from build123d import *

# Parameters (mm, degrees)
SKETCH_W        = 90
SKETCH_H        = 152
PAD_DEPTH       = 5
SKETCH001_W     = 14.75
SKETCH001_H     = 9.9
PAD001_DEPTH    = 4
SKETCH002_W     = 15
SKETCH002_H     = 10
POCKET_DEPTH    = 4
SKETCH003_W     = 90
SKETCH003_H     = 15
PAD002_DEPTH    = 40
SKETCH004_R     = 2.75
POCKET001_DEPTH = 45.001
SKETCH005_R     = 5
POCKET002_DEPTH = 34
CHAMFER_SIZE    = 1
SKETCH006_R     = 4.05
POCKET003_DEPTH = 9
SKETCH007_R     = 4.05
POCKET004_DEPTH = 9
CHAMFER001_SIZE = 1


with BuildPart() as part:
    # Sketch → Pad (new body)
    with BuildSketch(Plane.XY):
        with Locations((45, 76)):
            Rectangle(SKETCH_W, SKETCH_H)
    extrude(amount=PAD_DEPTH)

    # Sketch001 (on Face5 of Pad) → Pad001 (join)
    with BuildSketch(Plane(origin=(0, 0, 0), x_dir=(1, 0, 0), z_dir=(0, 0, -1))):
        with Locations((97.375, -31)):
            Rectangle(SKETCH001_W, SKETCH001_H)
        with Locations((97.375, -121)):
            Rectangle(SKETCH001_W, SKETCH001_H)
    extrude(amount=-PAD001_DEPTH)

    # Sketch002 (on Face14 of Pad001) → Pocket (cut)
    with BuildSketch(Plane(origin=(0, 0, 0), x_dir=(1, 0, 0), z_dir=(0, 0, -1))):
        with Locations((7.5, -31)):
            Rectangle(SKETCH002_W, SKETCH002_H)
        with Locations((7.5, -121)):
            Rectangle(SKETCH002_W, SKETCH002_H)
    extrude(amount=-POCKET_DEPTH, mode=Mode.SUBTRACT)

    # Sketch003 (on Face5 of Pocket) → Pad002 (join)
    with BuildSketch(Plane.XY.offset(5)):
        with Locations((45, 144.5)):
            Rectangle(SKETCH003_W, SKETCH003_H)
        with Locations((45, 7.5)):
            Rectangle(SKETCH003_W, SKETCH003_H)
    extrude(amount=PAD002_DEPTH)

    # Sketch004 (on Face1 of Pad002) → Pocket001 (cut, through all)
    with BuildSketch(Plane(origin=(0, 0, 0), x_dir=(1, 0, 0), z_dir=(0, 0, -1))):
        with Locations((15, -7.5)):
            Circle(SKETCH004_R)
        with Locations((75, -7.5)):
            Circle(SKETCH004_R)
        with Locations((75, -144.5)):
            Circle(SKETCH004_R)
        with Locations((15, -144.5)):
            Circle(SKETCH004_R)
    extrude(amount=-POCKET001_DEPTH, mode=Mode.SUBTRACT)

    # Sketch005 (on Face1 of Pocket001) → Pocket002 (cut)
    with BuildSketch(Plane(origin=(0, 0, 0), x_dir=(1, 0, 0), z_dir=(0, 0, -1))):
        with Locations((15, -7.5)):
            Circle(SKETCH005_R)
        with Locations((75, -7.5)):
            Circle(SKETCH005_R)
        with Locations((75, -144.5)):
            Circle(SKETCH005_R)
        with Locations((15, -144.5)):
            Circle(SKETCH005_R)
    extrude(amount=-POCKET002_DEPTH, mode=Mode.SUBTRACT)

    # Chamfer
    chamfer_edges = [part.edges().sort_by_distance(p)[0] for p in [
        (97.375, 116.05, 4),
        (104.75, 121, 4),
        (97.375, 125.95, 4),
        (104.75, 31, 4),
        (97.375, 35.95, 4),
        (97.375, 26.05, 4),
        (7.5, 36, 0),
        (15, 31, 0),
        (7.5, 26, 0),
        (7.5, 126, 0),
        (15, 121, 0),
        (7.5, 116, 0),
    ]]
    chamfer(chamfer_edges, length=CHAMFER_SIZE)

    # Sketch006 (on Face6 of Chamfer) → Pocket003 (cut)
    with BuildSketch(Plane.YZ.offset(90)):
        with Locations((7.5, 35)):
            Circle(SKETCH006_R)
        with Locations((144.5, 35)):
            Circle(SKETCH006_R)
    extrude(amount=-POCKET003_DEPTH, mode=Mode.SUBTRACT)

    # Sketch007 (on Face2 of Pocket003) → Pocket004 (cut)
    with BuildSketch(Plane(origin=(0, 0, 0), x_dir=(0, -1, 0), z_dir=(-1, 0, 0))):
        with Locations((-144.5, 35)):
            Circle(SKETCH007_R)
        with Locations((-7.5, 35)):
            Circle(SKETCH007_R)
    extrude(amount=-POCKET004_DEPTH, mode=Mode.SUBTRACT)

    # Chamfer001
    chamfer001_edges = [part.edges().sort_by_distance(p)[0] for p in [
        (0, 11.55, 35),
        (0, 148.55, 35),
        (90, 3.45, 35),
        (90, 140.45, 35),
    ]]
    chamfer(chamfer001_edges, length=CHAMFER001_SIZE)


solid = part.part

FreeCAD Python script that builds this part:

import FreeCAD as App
import Part
import Sketcher


def edges_at(feature, points):
    """Names of the edges that pass closest to the given points."""
    edges = feature.Shape.Edges
    near = lambda p: min(range(len(edges)), key=lambda i: edges[i].distToShape(Part.Vertex(*p))[0])
    return sorted({f"Edge{near(p) + 1}" for p in points})

doc = App.newDocument("Part")
body = doc.addObject("PartDesign::Body", "Body")

sketch1 = doc.addObject("Sketcher::SketchObject", "Sketch")
body.addObject(sketch1)
sketch1.AttachmentSupport = (doc.XY_Plane, [""])
sketch1.MapMode = "FlatFace"
sketch1.addGeometry([
    Part.LineSegment(App.Vector(0, 152, 0), App.Vector(0, 0, 0)),
    Part.LineSegment(App.Vector(0, 0, 0), App.Vector(90, 0, 0)),
    Part.LineSegment(App.Vector(90, 0, 0), App.Vector(90, 152, 0)),
    Part.LineSegment(App.Vector(90, 152, 0), App.Vector(0, 152, 0)),
], False)
sketch1.addConstraint([
    Sketcher.Constraint("Coincident", 0, 2, 1, 1),
    Sketcher.Constraint("Coincident", 1, 2, 2, 1),
    Sketcher.Constraint("Coincident", 2, 2, 3, 1),
    Sketcher.Constraint("Coincident", 3, 2, 0, 1),
    Sketcher.Constraint("Vertical", 0),
    Sketcher.Constraint("Horizontal", 1),
    Sketcher.Constraint("Vertical", 2),
    Sketcher.Constraint("Horizontal", 3),
    Sketcher.Constraint("Coincident", 0, 2, -1, 1),
    Sketcher.Constraint("DistanceX", 1, 1, 1, 2, 90.0),
    Sketcher.Constraint("DistanceY", 0, 2, 0, 1, 152.0),
])
pad1 = doc.addObject("PartDesign::Pad", "Pad")
body.addObject(pad1)
pad1.Profile = sketch1
pad1.Length = 5

sketch2 = doc.addObject("Sketcher::SketchObject", "Sketch001")
body.addObject(sketch2)
sketch2.AttachmentSupport = (doc.XY_Plane, [""])
sketch2.MapMode = "FlatFace"
sketch2.addGeometry([
    Part.LineSegment(App.Vector(90, 26, 0), App.Vector(90, 36, 0)),
    Part.LineSegment(App.Vector(90, 36, 0), App.Vector(105, 36, 0)),
    Part.LineSegment(App.Vector(105, 36, 0), App.Vector(105, 26, 0)),
    Part.LineSegment(App.Vector(105, 26, 0), App.Vector(90, 26, 0)),
    Part.LineSegment(App.Vector(90, 116, 0), App.Vector(90, 126, 0)),
    Part.LineSegment(App.Vector(90, 126, 0), App.Vector(105, 126, 0)),
    Part.LineSegment(App.Vector(105, 126, 0), App.Vector(105, 116, 0)),
    Part.LineSegment(App.Vector(105, 116, 0), App.Vector(90, 116, 0)),
], False)
sketch2.addConstraint([
    Sketcher.Constraint("Coincident", 0, 2, 1, 1),
    Sketcher.Constraint("Coincident", 1, 2, 2, 1),
    Sketcher.Constraint("Coincident", 2, 2, 3, 1),
    Sketcher.Constraint("Coincident", 3, 2, 0, 1),
    Sketcher.Constraint("Coincident", 4, 2, 5, 1),
    Sketcher.Constraint("Coincident", 5, 2, 6, 1),
    Sketcher.Constraint("Coincident", 6, 2, 7, 1),
    Sketcher.Constraint("Coincident", 7, 2, 4, 1),
    Sketcher.Constraint("Vertical", 0),
    Sketcher.Constraint("Horizontal", 1),
    Sketcher.Constraint("Vertical", 2),
    Sketcher.Constraint("Horizontal", 3),
    Sketcher.Constraint("Vertical", 4),
    Sketcher.Constraint("Horizontal", 5),
    Sketcher.Constraint("Vertical", 6),
    Sketcher.Constraint("Horizontal", 7),
    Sketcher.Constraint("Vertical", 3, 2, 4, 2),
    Sketcher.Constraint("Vertical", 2, 2, 5, 2),
    Sketcher.Constraint("Equal", 2, 4),
    Sketcher.Constraint("DistanceY", 0, 1, 0, 2, 9.9),
    Sketcher.Constraint("DistanceX", -1, 1, 0, 2, 90.0),
    Sketcher.Constraint("DistanceY", 0, 2, 4, 2, 90.0),
    Sketcher.Constraint("DistanceX", 1, 1, 1, 2, 14.75),
    Sketcher.Constraint("DistanceY", -1, 1, 0, 2, 35.95),
])
pad2 = doc.addObject("PartDesign::Pad", "Pad001")
body.addObject(pad2)
pad2.Profile = sketch2
pad2.Length = 4

sketch3 = doc.addObject("Sketcher::SketchObject", "Sketch002")
body.addObject(sketch3)
sketch3.AttachmentSupport = (doc.XY_Plane, [""])
sketch3.MapMode = "FlatFace"
sketch3.addGeometry([
    Part.LineSegment(App.Vector(0, 26, 0), App.Vector(0, 36, 0)),
    Part.LineSegment(App.Vector(0, 36, 0), App.Vector(15, 36, 0)),
    Part.LineSegment(App.Vector(15, 36, 0), App.Vector(15, 26, 0)),
    Part.LineSegment(App.Vector(15, 26, 0), App.Vector(0, 26, 0)),
    Part.LineSegment(App.Vector(0, 116, 0), App.Vector(0, 126, 0)),
    Part.LineSegment(App.Vector(0, 126, 0), App.Vector(15, 126, 0)),
    Part.LineSegment(App.Vector(15, 126, 0), App.Vector(15, 116, 0)),
    Part.LineSegment(App.Vector(15, 116, 0), App.Vector(0, 116, 0)),
], False)
sketch3.addConstraint([
    Sketcher.Constraint("Coincident", 0, 2, 1, 1),
    Sketcher.Constraint("Coincident", 1, 2, 2, 1),
    Sketcher.Constraint("Coincident", 2, 2, 3, 1),
    Sketcher.Constraint("Coincident", 3, 2, 0, 1),
    Sketcher.Constraint("Coincident", 4, 2, 5, 1),
    Sketcher.Constraint("Coincident", 5, 2, 6, 1),
    Sketcher.Constraint("Coincident", 6, 2, 7, 1),
    Sketcher.Constraint("Coincident", 7, 2, 4, 1),
    Sketcher.Constraint("Vertical", 0),
    Sketcher.Constraint("Horizontal", 1),
    Sketcher.Constraint("Vertical", 2),
    Sketcher.Constraint("Horizontal", 3),
    Sketcher.Constraint("Vertical", 4),
    Sketcher.Constraint("Horizontal", 5),
    Sketcher.Constraint("Vertical", 6),
    Sketcher.Constraint("Horizontal", 7),
    Sketcher.Constraint("PointOnObject", 0, 2, -2),
    Sketcher.Constraint("PointOnObject", 4, 2, -2),
    Sketcher.Constraint("Vertical", 2, 2, 5, 2),
    Sketcher.Constraint("Equal", 2, 4),
    Sketcher.Constraint("DistanceX", 1, 1, 1, 2, 15.0),
    Sketcher.Constraint("DistanceY", 0, 1, 0, 2, 10.0),
    Sketcher.Constraint("DistanceY", -1, 1, 0, 2, 36.0),
    Sketcher.Constraint("DistanceY", -1, 1, 4, 2, 126.0),
])
pocket1 = doc.addObject("PartDesign::Pocket", "Pocket")
body.addObject(pocket1)
pocket1.Profile = sketch3
pocket1.Length = 4
pocket1.Reversed = True

sketch4 = doc.addObject("Sketcher::SketchObject", "Sketch003")
body.addObject(sketch4)
sketch4.AttachmentSupport = (doc.XY_Plane, [""])
sketch4.MapMode = "FlatFace"
sketch4.AttachmentOffset = App.Placement(App.Vector(0, 0, 5), App.Rotation())
sketch4.addGeometry([
    Part.LineSegment(App.Vector(0, 152, 0), App.Vector(0, 137, 0)),
    Part.LineSegment(App.Vector(0, 137, 0), App.Vector(90, 137, 0)),
    Part.LineSegment(App.Vector(90, 137, 0), App.Vector(90, 152, 0)),
    Part.LineSegment(App.Vector(90, 152, 0), App.Vector(0, 152, 0)),
    Part.LineSegment(App.Vector(0, 15, 0), App.Vector(0, 0, 0)),
    Part.LineSegment(App.Vector(0, 0, 0), App.Vector(90, 0, 0)),
    Part.LineSegment(App.Vector(90, 0, 0), App.Vector(90, 15, 0)),
    Part.LineSegment(App.Vector(90, 15, 0), App.Vector(0, 15, 0)),
], False)
sketch4.addConstraint([
    Sketcher.Constraint("Coincident", 0, 2, 1, 1),
    Sketcher.Constraint("Coincident", 1, 2, 2, 1),
    Sketcher.Constraint("Coincident", 2, 2, 3, 1),
    Sketcher.Constraint("Coincident", 3, 2, 0, 1),
    Sketcher.Constraint("Coincident", 4, 2, 5, 1),
    Sketcher.Constraint("Coincident", 5, 2, 6, 1),
    Sketcher.Constraint("Coincident", 6, 2, 7, 1),
    Sketcher.Constraint("Coincident", 7, 2, 4, 1),
    Sketcher.Constraint("Vertical", 0),
    Sketcher.Constraint("Horizontal", 1),
    Sketcher.Constraint("Vertical", 2),
    Sketcher.Constraint("Horizontal", 3),
    Sketcher.Constraint("Vertical", 4),
    Sketcher.Constraint("Horizontal", 5),
    Sketcher.Constraint("Vertical", 6),
    Sketcher.Constraint("Horizontal", 7),
    Sketcher.Constraint("Coincident", 4, 2, -1, 1),
    Sketcher.Constraint("PointOnObject", 0, 2, -2),
    Sketcher.Constraint("Vertical", 2, 2, 5, 2),
    Sketcher.Constraint("Equal", 2, 4),
    Sketcher.Constraint("DistanceX", 1, 1, 1, 2, 90.0),
    Sketcher.Constraint("DistanceY", 0, 2, 0, 1, 15.0),
    Sketcher.Constraint("DistanceY", -1, 1, 0, 2, 137.0),
])
pad3 = doc.addObject("PartDesign::Pad", "Pad002")
body.addObject(pad3)
pad3.Profile = sketch4
pad3.Length = 40

sketch5 = doc.addObject("Sketcher::SketchObject", "Sketch004")
body.addObject(sketch5)
sketch5.AttachmentSupport = (doc.XY_Plane, [""])
sketch5.MapMode = "FlatFace"
sketch5.addGeometry([
    Part.Circle(App.Vector(15, 7.5, 0), App.Vector(0, 0, 1), 2.8),
    Part.Circle(App.Vector(75, 7.5, 0), App.Vector(0, 0, 1), 2.8),
    Part.Circle(App.Vector(75, 144.5, 0), App.Vector(0, 0, 1), 2.8),
    Part.Circle(App.Vector(15, 144.5, 0), App.Vector(0, 0, 1), 2.8),
], False)
sketch5.addConstraint([
    Sketcher.Constraint("Equal", 0, 1),
    Sketcher.Constraint("Equal", 1, 2),
    Sketcher.Constraint("Equal", 2, 3),
    Sketcher.Constraint("Horizontal", 0, 3, 1, 3),
    Sketcher.Constraint("Horizontal", 2, 3, 3, 3),
    Sketcher.Constraint("Vertical", 1, 3, 2, 3),
    Sketcher.Constraint("Vertical", 0, 3, 3, 3),
    Sketcher.Constraint("Diameter", 0, 5.5),
    Sketcher.Constraint("DistanceX", -1, 1, 0, 3, 15.0),
    Sketcher.Constraint("DistanceX", -1, 1, 1, 3, 75.0),
    Sketcher.Constraint("DistanceY", 1, 3, 2, 3, 137.0),
    Sketcher.Constraint("DistanceY", -1, 1, 0, 3, 7.5),
])
pocket2 = doc.addObject("PartDesign::Pocket", "Pocket001")
body.addObject(pocket2)
pocket2.Profile = sketch5
pocket2.Type = "ThroughAll"
pocket2.Reversed = True

sketch6 = doc.addObject("Sketcher::SketchObject", "Sketch005")
body.addObject(sketch6)
sketch6.AttachmentSupport = (doc.XY_Plane, [""])
sketch6.MapMode = "FlatFace"
sketch6.addGeometry([
    Part.Circle(App.Vector(15, 8, 0), App.Vector(0, 0, 1), 5),
    Part.Circle(App.Vector(75, 8, 0), App.Vector(0, 0, 1), 5),
    Part.Circle(App.Vector(75, 144, 0), App.Vector(0, 0, 1), 5),
    Part.Circle(App.Vector(15, 144, 0), App.Vector(0, 0, 1), 5),
], False)
sketch6.addConstraint([
    Sketcher.Constraint("Equal", 0, 1),
    Sketcher.Constraint("Equal", 1, 2),
    Sketcher.Constraint("Equal", 2, 3),
    Sketcher.Constraint("Horizontal", 0, 3, 1, 3),
    Sketcher.Constraint("Horizontal", 2, 3, 3, 3),
    Sketcher.Constraint("Vertical", 1, 3, 2, 3),
    Sketcher.Constraint("Vertical", 0, 3, 3, 3),
    Sketcher.Constraint("Diameter", 0, 10.0),
    Sketcher.Constraint("DistanceX", -1, 1, 0, 3, 15.0),
    Sketcher.Constraint("DistanceX", -1, 1, 1, 3, 75.0),
    Sketcher.Constraint("DistanceY", 1, 3, 2, 3, 137.0),
    Sketcher.Constraint("DistanceY", -1, 1, 0, 3, 7.5),
])
pocket3 = doc.addObject("PartDesign::Pocket", "Pocket002")
body.addObject(pocket3)
pocket3.Profile = sketch6
pocket3.Length = 34
pocket3.Reversed = True
doc.recompute()

chamfer = doc.addObject("PartDesign::Chamfer", "Chamfer")
body.addObject(chamfer)
chamfer.Base = (pocket3, edges_at(pocket3, [
    (97.375, 116.05, 4),
    (104.75, 121, 4),
    (97.375, 125.95, 4),
    (104.75, 31, 4),
    (97.375, 35.95, 4),
    (97.375, 26.05, 4),
    (7.5, 36, 0),
    (15, 31, 0),
    (7.5, 26, 0),
    (7.5, 126, 0),
    (15, 121, 0),
    (7.5, 116, 0),
]))
chamfer.Size = 1

sketch7 = doc.addObject("Sketcher::SketchObject", "Sketch006")
body.addObject(sketch7)
sketch7.AttachmentSupport = (doc.YZ_Plane, [""])
sketch7.MapMode = "FlatFace"
sketch7.AttachmentOffset = App.Placement(App.Vector(0, 0, 90), App.Rotation())
sketch7.addGeometry([
    Part.Circle(App.Vector(7.5, 35, 0), App.Vector(0, 0, 1), 4),
    Part.Circle(App.Vector(144.5, 35, 0), App.Vector(0, 0, 1), 4),
], False)
sketch7.addConstraint([
    Sketcher.Constraint("Equal", 0, 1),
    Sketcher.Constraint("Horizontal", 0, 3, 1, 3),
    Sketcher.Constraint("Diameter", 0, 8.1),
    Sketcher.Constraint("DistanceY", -1, 1, 0, 3, 35.0),
    Sketcher.Constraint("DistanceX", 0, 3, 1, 3, 137.0),
    Sketcher.Constraint("DistanceX", -1, 1, 0, 3, 7.5),
])
pocket4 = doc.addObject("PartDesign::Pocket", "Pocket003")
body.addObject(pocket4)
pocket4.Profile = sketch7
pocket4.Length = 9

sketch8 = doc.addObject("Sketcher::SketchObject", "Sketch007")
body.addObject(sketch8)
sketch8.AttachmentSupport = (doc.YZ_Plane, [""])
sketch8.MapMode = "FlatFace"
sketch8.addGeometry([
    Part.Circle(App.Vector(144.5, 35, 0), App.Vector(0, 0, 1), 4),
    Part.Circle(App.Vector(7.5, 35, 0), App.Vector(0, 0, 1), 4),
], False)
sketch8.addConstraint([
    Sketcher.Constraint("Equal", 0, 1),
    Sketcher.Constraint("Horizontal", 0, 3, 1, 3),
    Sketcher.Constraint("Diameter", 0, 8.1),
    Sketcher.Constraint("DistanceY", -1, 1, 0, 3, 35.0),
    Sketcher.Constraint("DistanceX", 1, 3, 0, 3, 137.0),
    Sketcher.Constraint("DistanceX", -1, 1, 0, 3, 144.5),
])
pocket5 = doc.addObject("PartDesign::Pocket", "Pocket004")
body.addObject(pocket5)
pocket5.Profile = sketch8
pocket5.Length = 9
pocket5.Reversed = True
doc.recompute()

chamfer2 = doc.addObject("PartDesign::Chamfer", "Chamfer001")
body.addObject(chamfer2)
chamfer2.Base = (pocket5, edges_at(pocket5, [
    (0, 11.55, 35),
    (0, 148.55, 35),
    (90, 3.45, 35),
    (90, 140.45, 35),
]))
chamfer2.Size = 1

doc.recompute()
